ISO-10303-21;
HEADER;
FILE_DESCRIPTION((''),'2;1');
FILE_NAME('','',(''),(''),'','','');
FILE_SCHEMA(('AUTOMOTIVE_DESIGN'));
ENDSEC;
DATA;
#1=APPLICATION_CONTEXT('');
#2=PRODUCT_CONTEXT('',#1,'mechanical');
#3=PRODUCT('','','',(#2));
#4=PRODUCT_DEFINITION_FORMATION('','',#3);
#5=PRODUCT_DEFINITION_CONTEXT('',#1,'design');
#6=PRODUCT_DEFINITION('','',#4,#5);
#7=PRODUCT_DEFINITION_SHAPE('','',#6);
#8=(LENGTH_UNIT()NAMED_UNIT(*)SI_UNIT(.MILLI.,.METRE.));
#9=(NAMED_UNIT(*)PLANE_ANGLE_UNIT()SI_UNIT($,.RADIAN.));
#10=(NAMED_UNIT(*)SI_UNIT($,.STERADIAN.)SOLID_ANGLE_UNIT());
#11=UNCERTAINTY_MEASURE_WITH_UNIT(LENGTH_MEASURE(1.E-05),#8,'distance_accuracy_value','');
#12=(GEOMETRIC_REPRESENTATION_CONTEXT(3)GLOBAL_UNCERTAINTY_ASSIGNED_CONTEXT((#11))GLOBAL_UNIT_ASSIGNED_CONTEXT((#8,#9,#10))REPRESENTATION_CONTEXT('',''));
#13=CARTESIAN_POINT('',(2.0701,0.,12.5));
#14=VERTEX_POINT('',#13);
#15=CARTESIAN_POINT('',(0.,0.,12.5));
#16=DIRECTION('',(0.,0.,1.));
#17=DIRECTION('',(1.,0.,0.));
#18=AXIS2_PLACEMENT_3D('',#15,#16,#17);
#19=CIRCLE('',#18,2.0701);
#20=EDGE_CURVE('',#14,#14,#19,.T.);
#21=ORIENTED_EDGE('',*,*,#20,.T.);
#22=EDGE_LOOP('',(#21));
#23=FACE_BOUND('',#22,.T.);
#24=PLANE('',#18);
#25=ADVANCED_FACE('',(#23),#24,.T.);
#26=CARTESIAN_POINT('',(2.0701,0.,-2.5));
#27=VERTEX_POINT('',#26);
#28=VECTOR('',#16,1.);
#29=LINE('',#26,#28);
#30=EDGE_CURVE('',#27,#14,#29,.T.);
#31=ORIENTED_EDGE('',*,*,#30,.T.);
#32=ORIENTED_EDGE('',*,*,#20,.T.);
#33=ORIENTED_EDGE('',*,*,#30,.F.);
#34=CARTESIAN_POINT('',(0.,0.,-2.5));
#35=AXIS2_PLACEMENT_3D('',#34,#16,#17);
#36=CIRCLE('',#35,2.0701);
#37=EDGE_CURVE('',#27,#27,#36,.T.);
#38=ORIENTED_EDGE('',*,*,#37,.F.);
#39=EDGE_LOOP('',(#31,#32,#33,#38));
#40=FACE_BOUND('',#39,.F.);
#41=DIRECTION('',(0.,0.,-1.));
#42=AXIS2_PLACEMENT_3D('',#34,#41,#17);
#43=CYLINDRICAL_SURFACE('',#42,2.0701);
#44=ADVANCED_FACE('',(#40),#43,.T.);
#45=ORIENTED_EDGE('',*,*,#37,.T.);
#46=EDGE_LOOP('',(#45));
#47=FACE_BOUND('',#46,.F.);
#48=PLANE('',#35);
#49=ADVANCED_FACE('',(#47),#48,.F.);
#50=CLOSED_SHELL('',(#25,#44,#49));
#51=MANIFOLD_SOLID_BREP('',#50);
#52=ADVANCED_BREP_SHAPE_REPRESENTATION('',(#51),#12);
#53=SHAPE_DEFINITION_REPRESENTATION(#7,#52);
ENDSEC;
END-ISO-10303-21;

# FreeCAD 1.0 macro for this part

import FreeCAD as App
import Part
import Sketcher
from FreeCAD import Vector
Q = App.Units.Quantity

doc = App.newDocument("Part")
body = doc.addObject("PartDesign::Body", "Body")

sketch1 = body.newObject("Sketcher::SketchObject", "Sketch")
sketch1.AttachmentSupport = (doc.getObject("XY_Plane"), [""])
sketch1.MapMode = "FlatFace"
sketch1.AttachmentOffset = App.Placement(Vector(0, 0, -2.5), App.Rotation())
sketch1.addGeometry(Part.Circle(Vector(0, 0, 0), Vector(0, 0, 1), 2.1), False)
sketch1.addConstraint([
    Sketcher.Constraint("Coincident", 0, 3, -1, 1),
    Sketcher.Constraint("Diameter", 0, Q("4.1402 mm")),
])
pad1 = body.newObject("PartDesign::Pad", "Pad")
pad1.Profile = sketch1
pad1.Length = 15

doc.recompute()
